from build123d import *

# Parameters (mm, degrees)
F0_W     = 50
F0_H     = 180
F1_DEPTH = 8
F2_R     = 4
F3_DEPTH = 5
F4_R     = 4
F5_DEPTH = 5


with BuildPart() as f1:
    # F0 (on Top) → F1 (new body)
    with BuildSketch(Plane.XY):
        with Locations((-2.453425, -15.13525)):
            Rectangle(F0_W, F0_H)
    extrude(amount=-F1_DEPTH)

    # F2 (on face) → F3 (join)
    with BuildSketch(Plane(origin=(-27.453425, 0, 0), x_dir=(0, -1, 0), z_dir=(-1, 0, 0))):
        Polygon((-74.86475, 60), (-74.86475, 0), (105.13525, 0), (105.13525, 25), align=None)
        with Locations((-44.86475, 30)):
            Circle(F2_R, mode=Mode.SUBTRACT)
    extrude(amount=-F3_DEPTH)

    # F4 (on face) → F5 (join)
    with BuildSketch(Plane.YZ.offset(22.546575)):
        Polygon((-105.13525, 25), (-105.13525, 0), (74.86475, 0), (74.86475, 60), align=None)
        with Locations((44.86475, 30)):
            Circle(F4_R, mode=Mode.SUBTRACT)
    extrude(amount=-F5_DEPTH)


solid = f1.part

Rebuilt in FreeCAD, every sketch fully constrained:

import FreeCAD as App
import Part
import Sketcher
from FreeCAD import Vector

doc = App.newDocument("Part")
body = doc.addObject("PartDesign::Body", "Body")

sketch1 = body.newObject("Sketcher::SketchObject", "Sketch")
sketch1.AttachmentSupport = (doc.getObject("XY_Plane"), [""])
sketch1.MapMode = "FlatFace"
sketch1.addGeometry([
    Part.LineSegment(Vector(-27, 75, 0), Vector(-27, -105, 0)),
    Part.LineSegment(Vector(-27, -105, 0), Vector(23, -105, 0)),
    Part.LineSegment(Vector(23, -105, 0), Vector(23, 75, 0)),
    Part.LineSegment(Vector(23, 75, 0), Vector(-27, 75, 0)),
], False)
sketch1.addConstraint([
    Sketcher.Constraint("Coincident", 0, 2, 1, 1),
    Sketcher.Constraint("Coincident", 1, 2, 2, 1),
    Sketcher.Constraint("Coincident", 2, 2, 3, 1),
    Sketcher.Constraint("Coincident", 3, 2, 0, 1),
    Sketcher.Constraint("Vertical", 0),
    Sketcher.Constraint("Horizontal", 1),
    Sketcher.Constraint("Vertical", 2),
    Sketcher.Constraint("Horizontal", 3),
    Sketcher.Constraint("DistanceX", 1, 1, 1, 2, 50.0),
    Sketcher.Constraint("DistanceY", 0, 2, 0, 1, 180.0),
    Sketcher.Constraint("DistanceY", 0, 2, -1, 1, 105.13525),
    Sketcher.Constraint("DistanceX", 0, 2, -1, 1, 27.453425),
])
pad1 = body.newObject("PartDesign::Pad", "Pad")
pad1.Profile = sketch1
pad1.Length = 8
pad1.Reversed = True

sketch2 = body.newObject("Sketcher::SketchObject", "Sketch001")
sketch2.AttachmentSupport = (doc.getObject("YZ_Plane"), [""])
sketch2.MapMode = "FlatFace"
sketch2.AttachmentOffset = App.Placement(Vector(0, 0, -27.453425), App.Rotation())
sketch2.addGeometry([
    Part.LineSegment(Vector(74.9, 60, 0), Vector(74.9, 0, 0)),
    Part.LineSegment(Vector(74.9, 0, 0), Vector(-105.1, 0, 0)),
    Part.LineSegment(Vector(-105.1, 0, 0), Vector(-105.1, 25, 0)),
    Part.LineSegment(Vector(-105.1, 25, 0), Vector(74.9, 60, 0)),
    Part.Circle(Vector(44.9, 30, 0), Vector(0, 0, 1), 4),
], False)
sketch2.addConstraint([
    Sketcher.Constraint("Coincident", 0, 2, 1, 1),
    Sketcher.Constraint("Coincident", 1, 2, 2, 1),
    Sketcher.Constraint("Coincident", 2, 2, 3, 1),
    Sketcher.Constraint("Coincident", 3, 2, 0, 1),
    Sketcher.Constraint("Vertical", 0),
    Sketcher.Constraint("Horizontal", 1),
    Sketcher.Constraint("Vertical", 2),
    Sketcher.Constraint("PointOnObject", 0, 2, -1),
    Sketcher.Constraint("Diameter", 4, 8.0),
    Sketcher.Constraint("DistanceX", 1, 2, 1, 1, 180.0),
    Sketcher.Constraint("DistanceY", 0, 2, 0, 1, 60.0),
    Sketcher.Constraint("DistanceY", 2, 1, 2, 2, 25.0),
    Sketcher.Constraint("DistanceY", -1, 1, 4, 3, 30.0),
    Sketcher.Constraint("DistanceX", 4, 3, 0, 2, 30.0),
    Sketcher.Constraint("DistanceX", -1, 1, 4, 3, 44.86475),
])
pad2 = body.newObject("PartDesign::Pad", "Pad001")
pad2.Profile = sketch2
pad2.Length = 5

sketch3 = body.newObject("Sketcher::SketchObject", "Sketch002")
sketch3.AttachmentSupport = (doc.getObject("YZ_Plane"), [""])
sketch3.MapMode = "FlatFace"
sketch3.AttachmentOffset = App.Placement(Vector(0, 0, 22.546575), App.Rotation())
sketch3.addGeometry([
    Part.LineSegment(Vector(-105.1, 25, 0), Vector(-105.1, 0, 0)),
    Part.LineSegment(Vector(-105.1, 0, 0), Vector(74.9, 0, 0)),
    Part.LineSegment(Vector(74.9, 0, 0), Vector(74.9, 60, 0)),
    Part.LineSegment(Vector(74.9, 60, 0), Vector(-105.1, 25, 0)),
    Part.Circle(Vector(44.9, 30, 0), Vector(0, 0, 1), 4),
], False)
sketch3.addConstraint([
    Sketcher.Constraint("Coincident", 0, 2, 1, 1),
    Sketcher.Constraint("Coincident", 1, 2, 2, 1),
    Sketcher.Constraint("Coincident", 2, 2, 3, 1),
    Sketcher.Constraint("Coincident", 3, 2, 0, 1),
    Sketcher.Constraint("Vertical", 0),
    Sketcher.Constraint("Horizontal", 1),
    Sketcher.Constraint("Vertical", 2),
    Sketcher.Constraint("PointOnObject", 0, 2, -1),
    Sketcher.Constraint("Diameter", 4, 8.0),
    Sketcher.Constraint("DistanceX", 1, 1, 1, 2, 180.0),
    Sketcher.Constraint("DistanceY", 0, 2, 0, 1, 25.0),
    Sketcher.Constraint("DistanceY", 2, 1, 2, 2, 60.0),
    Sketcher.Constraint("DistanceY", -1, 1, 4, 3, 30.0),
    Sketcher.Constraint("DistanceX", 0, 2, 4, 3, 150.0),
    Sketcher.Constraint("DistanceX", -1, 1, 4, 3, 44.86475),
])
pad3 = body.newObject("PartDesign::Pad", "Pad002")
pad3.Profile = sketch3
pad3.Length = 5
pad3.Reversed = True

doc.recompute()
